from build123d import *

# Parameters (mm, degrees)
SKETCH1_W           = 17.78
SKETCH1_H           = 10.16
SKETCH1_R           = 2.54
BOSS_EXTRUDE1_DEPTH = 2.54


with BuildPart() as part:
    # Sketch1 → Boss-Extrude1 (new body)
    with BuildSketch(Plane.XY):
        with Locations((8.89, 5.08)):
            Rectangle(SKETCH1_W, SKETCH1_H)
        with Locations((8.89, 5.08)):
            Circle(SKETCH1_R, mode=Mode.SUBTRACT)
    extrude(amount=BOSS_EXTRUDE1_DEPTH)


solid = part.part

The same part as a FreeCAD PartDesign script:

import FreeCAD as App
import Part
import Sketcher
Q = App.Units.Quantity


def add_polygon(sketch, points):
    """Adds a closed chain of lines whose ends are joined by coincident constraints."""
    first, n = sketch.GeometryCount, len(points)
    for a, b in zip(points, points[1:] + points[:1]):
        sketch.addGeometry(Part.LineSegment(App.Vector(*a, 0), App.Vector(*b, 0)), False)
    for i in range(n):
        sketch.addConstraint(Sketcher.Constraint("Coincident", first + i, 2, first + (i + 1) % n, 1))

doc = App.newDocument("Part")
body = doc.addObject("PartDesign::Body", "Body")

# Sketch on XY plane
sketch1 = body.newObject("Sketcher::SketchObject", "Sketch")
sketch1.AttachmentSupport = (doc.getObject("XY_Plane"), [""])
sketch1.MapMode = "FlatFace"
add_polygon(sketch1, [(0, 10.2), (0, 0), (17.8, 0), (17.8, 10.2)])  # lines 0-3
sketch1.addGeometry(Part.Circle(App.Vector(8.9, 5.1, 0), App.Vector(0, 0, 1), 2.5), False)  # 4
sketch1.addConstraint([
    Sketcher.Constraint("Vertical", 0),
    Sketcher.Constraint("Horizontal", 1),
    Sketcher.Constraint("Vertical", 2),
    Sketcher.Constraint("Horizontal", 3),
    Sketcher.Constraint("Coincident", 0, 2, -1, 1),
    Sketcher.Constraint("Diameter", 4, Q("0.2 in")),
    Sketcher.Constraint("DistanceX", 1, 1, 1, 2, Q("0.7 in")),
    Sketcher.Constraint("DistanceY", 0, 2, 0, 1, Q("0.4 in")),
    Sketcher.Constraint("DistanceY", -1, 1, 4, 3, Q("0.2 in")),
    Sketcher.Constraint("DistanceX", -1, 1, 4, 3, Q("0.35 in")),
])
pad1 = body.newObject("PartDesign::Pad", "Pad")
pad1.Profile = sketch1
pad1.Length = Q("0.1 in")

doc.recompute()
